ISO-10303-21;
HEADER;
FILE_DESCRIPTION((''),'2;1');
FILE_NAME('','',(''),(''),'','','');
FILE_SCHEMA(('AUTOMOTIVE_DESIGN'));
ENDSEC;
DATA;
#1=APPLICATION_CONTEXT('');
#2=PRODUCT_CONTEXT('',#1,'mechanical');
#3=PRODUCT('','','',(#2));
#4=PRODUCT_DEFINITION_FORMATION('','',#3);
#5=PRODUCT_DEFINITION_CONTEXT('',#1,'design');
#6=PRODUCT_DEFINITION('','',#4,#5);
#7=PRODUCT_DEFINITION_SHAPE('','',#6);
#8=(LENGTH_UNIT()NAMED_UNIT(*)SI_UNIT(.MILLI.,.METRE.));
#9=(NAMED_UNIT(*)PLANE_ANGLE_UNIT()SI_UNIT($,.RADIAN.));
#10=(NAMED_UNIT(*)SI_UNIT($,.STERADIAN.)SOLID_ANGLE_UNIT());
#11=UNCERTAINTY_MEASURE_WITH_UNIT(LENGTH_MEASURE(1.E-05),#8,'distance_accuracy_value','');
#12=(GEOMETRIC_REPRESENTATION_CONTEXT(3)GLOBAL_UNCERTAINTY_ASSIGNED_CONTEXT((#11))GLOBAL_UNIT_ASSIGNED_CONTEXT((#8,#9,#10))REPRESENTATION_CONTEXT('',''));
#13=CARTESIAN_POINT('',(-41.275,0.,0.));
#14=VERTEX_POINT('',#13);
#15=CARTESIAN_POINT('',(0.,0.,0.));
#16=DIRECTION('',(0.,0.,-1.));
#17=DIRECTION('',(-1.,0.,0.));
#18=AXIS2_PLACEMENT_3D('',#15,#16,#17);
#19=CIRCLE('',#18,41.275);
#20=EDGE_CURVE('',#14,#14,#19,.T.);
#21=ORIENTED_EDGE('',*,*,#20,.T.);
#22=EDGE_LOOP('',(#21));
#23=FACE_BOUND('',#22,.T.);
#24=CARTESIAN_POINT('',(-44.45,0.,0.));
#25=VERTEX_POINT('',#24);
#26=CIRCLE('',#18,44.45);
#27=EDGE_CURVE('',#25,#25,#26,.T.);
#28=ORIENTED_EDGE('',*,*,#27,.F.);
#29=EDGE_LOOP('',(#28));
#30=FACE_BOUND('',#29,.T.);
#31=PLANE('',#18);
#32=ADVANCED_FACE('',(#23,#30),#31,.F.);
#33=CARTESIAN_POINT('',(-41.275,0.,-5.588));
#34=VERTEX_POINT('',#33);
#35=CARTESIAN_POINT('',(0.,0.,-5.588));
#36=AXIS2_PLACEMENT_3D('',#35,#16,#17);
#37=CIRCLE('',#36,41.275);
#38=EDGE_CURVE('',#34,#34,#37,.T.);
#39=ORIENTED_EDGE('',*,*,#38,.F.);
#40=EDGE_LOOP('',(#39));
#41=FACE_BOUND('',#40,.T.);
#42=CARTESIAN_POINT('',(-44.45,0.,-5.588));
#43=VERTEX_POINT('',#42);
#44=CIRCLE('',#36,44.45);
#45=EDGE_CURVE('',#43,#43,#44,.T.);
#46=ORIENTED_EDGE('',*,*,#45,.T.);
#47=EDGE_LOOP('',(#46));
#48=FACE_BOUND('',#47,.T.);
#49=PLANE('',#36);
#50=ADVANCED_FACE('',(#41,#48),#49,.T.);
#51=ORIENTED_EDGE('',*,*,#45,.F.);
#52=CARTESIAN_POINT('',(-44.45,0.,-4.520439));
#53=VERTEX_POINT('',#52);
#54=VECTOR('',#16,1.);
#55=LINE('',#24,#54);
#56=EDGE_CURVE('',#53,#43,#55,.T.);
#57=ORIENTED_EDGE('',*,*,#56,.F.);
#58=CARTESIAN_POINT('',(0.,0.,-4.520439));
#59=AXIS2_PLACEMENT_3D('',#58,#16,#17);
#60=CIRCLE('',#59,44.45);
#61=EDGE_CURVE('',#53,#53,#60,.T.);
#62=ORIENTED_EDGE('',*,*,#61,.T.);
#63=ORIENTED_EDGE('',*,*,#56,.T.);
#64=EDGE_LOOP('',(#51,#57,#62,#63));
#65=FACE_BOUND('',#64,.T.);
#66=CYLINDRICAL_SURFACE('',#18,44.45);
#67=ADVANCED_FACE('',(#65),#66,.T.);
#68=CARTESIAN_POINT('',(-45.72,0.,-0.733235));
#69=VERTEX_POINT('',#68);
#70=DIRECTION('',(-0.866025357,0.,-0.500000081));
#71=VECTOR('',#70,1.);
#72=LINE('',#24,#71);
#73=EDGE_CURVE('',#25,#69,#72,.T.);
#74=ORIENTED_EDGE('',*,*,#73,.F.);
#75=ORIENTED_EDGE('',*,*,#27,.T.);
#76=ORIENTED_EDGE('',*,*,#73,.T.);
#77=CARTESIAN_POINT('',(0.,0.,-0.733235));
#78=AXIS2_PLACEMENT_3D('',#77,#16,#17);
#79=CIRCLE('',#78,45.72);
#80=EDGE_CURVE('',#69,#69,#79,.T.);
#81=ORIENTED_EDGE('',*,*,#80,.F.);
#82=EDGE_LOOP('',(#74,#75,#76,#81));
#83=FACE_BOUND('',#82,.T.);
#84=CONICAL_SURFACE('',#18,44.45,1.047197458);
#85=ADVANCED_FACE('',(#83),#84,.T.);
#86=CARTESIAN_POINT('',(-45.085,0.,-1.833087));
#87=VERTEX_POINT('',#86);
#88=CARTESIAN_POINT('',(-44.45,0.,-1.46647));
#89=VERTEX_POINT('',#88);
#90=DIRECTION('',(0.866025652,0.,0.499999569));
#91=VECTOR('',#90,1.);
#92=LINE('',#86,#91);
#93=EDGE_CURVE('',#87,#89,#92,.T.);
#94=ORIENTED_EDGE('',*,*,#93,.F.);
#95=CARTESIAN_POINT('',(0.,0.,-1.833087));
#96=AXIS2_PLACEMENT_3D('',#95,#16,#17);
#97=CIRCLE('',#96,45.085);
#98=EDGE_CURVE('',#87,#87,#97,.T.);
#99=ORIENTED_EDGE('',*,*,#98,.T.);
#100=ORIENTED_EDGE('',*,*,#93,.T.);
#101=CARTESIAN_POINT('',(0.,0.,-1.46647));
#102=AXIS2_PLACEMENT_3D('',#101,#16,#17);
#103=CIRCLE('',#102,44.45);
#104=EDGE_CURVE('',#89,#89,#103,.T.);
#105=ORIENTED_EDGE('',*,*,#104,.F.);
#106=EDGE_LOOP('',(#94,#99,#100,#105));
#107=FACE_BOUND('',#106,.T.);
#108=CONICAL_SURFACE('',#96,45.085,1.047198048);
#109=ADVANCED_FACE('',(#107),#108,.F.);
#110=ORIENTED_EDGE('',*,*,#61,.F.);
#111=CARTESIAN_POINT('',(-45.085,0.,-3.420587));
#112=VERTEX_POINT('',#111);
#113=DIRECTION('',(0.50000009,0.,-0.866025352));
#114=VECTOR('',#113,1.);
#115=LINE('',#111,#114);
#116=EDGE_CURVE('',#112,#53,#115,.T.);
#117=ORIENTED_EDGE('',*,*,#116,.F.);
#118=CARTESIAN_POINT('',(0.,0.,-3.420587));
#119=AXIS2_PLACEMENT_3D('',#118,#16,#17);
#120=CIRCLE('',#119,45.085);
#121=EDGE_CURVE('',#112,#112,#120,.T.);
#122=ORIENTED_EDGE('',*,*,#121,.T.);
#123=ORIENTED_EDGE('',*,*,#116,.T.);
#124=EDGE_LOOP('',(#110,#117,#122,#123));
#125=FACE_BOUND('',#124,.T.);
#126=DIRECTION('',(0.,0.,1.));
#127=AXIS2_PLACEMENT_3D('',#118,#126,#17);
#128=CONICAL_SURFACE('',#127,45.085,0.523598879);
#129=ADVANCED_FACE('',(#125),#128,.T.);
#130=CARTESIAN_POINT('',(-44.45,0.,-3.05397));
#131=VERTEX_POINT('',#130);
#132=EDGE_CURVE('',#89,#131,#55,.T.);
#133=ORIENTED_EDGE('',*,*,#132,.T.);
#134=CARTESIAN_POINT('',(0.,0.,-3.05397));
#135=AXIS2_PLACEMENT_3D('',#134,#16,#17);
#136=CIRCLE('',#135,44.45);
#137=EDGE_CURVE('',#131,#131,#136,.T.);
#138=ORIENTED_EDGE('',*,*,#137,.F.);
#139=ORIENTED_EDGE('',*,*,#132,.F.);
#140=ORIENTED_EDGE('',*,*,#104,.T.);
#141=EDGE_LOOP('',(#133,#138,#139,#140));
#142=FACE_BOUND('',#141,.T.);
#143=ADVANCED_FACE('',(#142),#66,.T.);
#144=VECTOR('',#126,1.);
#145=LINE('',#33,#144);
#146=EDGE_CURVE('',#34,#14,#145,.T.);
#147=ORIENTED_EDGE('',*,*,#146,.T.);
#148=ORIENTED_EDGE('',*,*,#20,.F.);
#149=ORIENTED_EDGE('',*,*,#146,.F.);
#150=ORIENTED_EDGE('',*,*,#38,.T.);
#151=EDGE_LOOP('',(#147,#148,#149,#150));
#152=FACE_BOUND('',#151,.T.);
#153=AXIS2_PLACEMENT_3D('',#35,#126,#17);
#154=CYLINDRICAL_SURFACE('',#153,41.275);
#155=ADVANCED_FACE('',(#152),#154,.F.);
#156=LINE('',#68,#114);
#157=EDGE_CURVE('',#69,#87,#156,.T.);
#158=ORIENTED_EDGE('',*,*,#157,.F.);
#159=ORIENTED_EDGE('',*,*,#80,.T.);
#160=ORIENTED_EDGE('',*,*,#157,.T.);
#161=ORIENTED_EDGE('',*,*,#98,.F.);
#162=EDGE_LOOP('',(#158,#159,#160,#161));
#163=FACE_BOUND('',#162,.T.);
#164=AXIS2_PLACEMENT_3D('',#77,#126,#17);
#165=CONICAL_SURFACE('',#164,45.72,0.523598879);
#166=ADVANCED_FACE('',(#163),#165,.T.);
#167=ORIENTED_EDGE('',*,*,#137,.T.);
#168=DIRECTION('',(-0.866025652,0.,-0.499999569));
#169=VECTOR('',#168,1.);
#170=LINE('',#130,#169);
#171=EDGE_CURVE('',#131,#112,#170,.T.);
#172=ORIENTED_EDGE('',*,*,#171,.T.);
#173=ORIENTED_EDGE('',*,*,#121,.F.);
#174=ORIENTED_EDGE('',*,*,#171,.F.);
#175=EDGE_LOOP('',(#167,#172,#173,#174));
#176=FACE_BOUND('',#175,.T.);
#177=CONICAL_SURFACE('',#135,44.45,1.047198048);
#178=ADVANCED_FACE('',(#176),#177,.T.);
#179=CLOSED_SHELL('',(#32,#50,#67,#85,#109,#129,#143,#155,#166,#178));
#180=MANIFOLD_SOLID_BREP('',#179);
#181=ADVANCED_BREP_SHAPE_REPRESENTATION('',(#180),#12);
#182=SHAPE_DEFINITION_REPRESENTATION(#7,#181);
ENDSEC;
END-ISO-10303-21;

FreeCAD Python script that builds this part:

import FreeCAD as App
import Part
import Sketcher
Q = App.Units.Quantity

doc = App.newDocument("Part")
body = doc.addObject("PartDesign::Body", "Body")

# Sketch on XZ plane
sketch1 = body.newObject("Sketcher::SketchObject", "Sketch")
sketch1.AttachmentSupport = (doc.getObject("XZ_Plane"), [""])
sketch1.MapMode = "FlatFace"
sketch1.addGeometry(Part.LineSegment(App.Vector(-41.3, 0, 0), App.Vector(-44.5, 0, 0)), False)
sketch1.addGeometry(Part.LineSegment(App.Vector(-44.5, 0, 0), App.Vector(-45.7, -0.7, 0)), False)
sketch1.addGeometry(Part.LineSegment(App.Vector(-45.7, -0.7, 0), App.Vector(-45.1, -1.8, 0)), False)
sketch1.addGeometry(Part.LineSegment(App.Vector(-45.1, -1.8, 0), App.Vector(-44.5, -1.5, 0)), False)
sketch1.addGeometry(Part.LineSegment(App.Vector(-44.5, -1.5, 0), App.Vector(-44.5, -3.1, 0)), False)
sketch1.addGeometry(Part.LineSegment(App.Vector(-44.5, -3.1, 0), App.Vector(-45.1, -3.4, 0)), False)
sketch1.addGeometry(Part.LineSegment(App.Vector(-45.1, -3.4, 0), App.Vector(-44.5, -4.5, 0)), False)
sketch1.addGeometry(Part.LineSegment(App.Vector(-44.5, -4.5, 0), App.Vector(-44.5, -5.6, 0)), False)
sketch1.addGeometry(Part.LineSegment(App.Vector(-44.5, -5.6, 0), App.Vector(-41.3, -5.6, 0)), False)
sketch1.addGeometry(Part.LineSegment(App.Vector(-41.3, -5.6, 0), App.Vector(-41.3, 0, 0)), False)
sketch1.addConstraint(Sketcher.Constraint("Coincident", 0, 2, 1, 1))
sketch1.addConstraint(Sketcher.Constraint("Coincident", 1, 2, 2, 1))
sketch1.addConstraint(Sketcher.Constraint("Coincident", 2, 2, 3, 1))
sketch1.addConstraint(Sketcher.Constraint("Coincident", 3, 2, 4, 1))
sketch1.addConstraint(Sketcher.Constraint("Coincident", 4, 2, 5, 1))
sketch1.addConstraint(Sketcher.Constraint("Coincident", 5, 2, 6, 1))
sketch1.addConstraint(Sketcher.Constraint("Coincident", 6, 2, 7, 1))
sketch1.addConstraint(Sketcher.Constraint("Coincident", 7, 2, 8, 1))
sketch1.addConstraint(Sketcher.Constraint("Coincident", 8, 2, 9, 1))
sketch1.addConstraint(Sketcher.Constraint("Coincident", 9, 2, 0, 1))
sketch1.addConstraint(Sketcher.Constraint("Horizontal", 0))
sketch1.addConstraint(Sketcher.Constraint("Vertical", 4))
sketch1.addConstraint(Sketcher.Constraint("Vertical", 7))
sketch1.addConstraint(Sketcher.Constraint("Horizontal", 8))
sketch1.addConstraint(Sketcher.Constraint("Vertical", 9))
sketch1.addConstraint(Sketcher.Constraint("PointOnObject", 0, 2, -1))
sketch1.addConstraint(Sketcher.Constraint("Perpendicular", 1, 2))
sketch1.addConstraint(Sketcher.Constraint("Perpendicular", 2, 3))
sketch1.addConstraint(Sketcher.Constraint("Parallel", 3, 5))
sketch1.addConstraint(Sketcher.Constraint("Perpendicular", 5, 6))
sketch1.addConstraint(Sketcher.Constraint("Vertical", 0, 2, 3, 2))
sketch1.addConstraint(Sketcher.Constraint("Vertical", 2, 2, 5, 2))
sketch1.addConstraint(Sketcher.Constraint("Vertical", 4, 2, 6, 2))
sketch1.addConstraint(Sketcher.Constraint("Equal", 2, 6))
sketch1.addConstraint(Sketcher.Constraint("Angle", 1, Q("-149.999995 deg")))
sketch1.addConstraint(Sketcher.Constraint("DistanceY", 9, 1, 9, 2, Q("0.22 in")))
sketch1.addConstraint(Sketcher.Constraint("DistanceX", 1, 2, -1, 1, Q("1.8 in")))
sketch1.addConstraint(Sketcher.Constraint("Distance", 2, Q("0.05 in")))
sketch1.addConstraint(Sketcher.Constraint("DistanceX", 0, 2, 0, 1, Q("0.125 in")))
sketch1.addConstraint(Sketcher.Constraint("DistanceY", 4, 2, 4, 1, Q("0.0625 in")))
revolution = body.newObject("PartDesign::Revolution", "Revolution")
revolution.Profile = sketch1
revolution.ReferenceAxis = (sketch1, ["V_Axis"])
revolution.Angle = 360

doc.recompute()
